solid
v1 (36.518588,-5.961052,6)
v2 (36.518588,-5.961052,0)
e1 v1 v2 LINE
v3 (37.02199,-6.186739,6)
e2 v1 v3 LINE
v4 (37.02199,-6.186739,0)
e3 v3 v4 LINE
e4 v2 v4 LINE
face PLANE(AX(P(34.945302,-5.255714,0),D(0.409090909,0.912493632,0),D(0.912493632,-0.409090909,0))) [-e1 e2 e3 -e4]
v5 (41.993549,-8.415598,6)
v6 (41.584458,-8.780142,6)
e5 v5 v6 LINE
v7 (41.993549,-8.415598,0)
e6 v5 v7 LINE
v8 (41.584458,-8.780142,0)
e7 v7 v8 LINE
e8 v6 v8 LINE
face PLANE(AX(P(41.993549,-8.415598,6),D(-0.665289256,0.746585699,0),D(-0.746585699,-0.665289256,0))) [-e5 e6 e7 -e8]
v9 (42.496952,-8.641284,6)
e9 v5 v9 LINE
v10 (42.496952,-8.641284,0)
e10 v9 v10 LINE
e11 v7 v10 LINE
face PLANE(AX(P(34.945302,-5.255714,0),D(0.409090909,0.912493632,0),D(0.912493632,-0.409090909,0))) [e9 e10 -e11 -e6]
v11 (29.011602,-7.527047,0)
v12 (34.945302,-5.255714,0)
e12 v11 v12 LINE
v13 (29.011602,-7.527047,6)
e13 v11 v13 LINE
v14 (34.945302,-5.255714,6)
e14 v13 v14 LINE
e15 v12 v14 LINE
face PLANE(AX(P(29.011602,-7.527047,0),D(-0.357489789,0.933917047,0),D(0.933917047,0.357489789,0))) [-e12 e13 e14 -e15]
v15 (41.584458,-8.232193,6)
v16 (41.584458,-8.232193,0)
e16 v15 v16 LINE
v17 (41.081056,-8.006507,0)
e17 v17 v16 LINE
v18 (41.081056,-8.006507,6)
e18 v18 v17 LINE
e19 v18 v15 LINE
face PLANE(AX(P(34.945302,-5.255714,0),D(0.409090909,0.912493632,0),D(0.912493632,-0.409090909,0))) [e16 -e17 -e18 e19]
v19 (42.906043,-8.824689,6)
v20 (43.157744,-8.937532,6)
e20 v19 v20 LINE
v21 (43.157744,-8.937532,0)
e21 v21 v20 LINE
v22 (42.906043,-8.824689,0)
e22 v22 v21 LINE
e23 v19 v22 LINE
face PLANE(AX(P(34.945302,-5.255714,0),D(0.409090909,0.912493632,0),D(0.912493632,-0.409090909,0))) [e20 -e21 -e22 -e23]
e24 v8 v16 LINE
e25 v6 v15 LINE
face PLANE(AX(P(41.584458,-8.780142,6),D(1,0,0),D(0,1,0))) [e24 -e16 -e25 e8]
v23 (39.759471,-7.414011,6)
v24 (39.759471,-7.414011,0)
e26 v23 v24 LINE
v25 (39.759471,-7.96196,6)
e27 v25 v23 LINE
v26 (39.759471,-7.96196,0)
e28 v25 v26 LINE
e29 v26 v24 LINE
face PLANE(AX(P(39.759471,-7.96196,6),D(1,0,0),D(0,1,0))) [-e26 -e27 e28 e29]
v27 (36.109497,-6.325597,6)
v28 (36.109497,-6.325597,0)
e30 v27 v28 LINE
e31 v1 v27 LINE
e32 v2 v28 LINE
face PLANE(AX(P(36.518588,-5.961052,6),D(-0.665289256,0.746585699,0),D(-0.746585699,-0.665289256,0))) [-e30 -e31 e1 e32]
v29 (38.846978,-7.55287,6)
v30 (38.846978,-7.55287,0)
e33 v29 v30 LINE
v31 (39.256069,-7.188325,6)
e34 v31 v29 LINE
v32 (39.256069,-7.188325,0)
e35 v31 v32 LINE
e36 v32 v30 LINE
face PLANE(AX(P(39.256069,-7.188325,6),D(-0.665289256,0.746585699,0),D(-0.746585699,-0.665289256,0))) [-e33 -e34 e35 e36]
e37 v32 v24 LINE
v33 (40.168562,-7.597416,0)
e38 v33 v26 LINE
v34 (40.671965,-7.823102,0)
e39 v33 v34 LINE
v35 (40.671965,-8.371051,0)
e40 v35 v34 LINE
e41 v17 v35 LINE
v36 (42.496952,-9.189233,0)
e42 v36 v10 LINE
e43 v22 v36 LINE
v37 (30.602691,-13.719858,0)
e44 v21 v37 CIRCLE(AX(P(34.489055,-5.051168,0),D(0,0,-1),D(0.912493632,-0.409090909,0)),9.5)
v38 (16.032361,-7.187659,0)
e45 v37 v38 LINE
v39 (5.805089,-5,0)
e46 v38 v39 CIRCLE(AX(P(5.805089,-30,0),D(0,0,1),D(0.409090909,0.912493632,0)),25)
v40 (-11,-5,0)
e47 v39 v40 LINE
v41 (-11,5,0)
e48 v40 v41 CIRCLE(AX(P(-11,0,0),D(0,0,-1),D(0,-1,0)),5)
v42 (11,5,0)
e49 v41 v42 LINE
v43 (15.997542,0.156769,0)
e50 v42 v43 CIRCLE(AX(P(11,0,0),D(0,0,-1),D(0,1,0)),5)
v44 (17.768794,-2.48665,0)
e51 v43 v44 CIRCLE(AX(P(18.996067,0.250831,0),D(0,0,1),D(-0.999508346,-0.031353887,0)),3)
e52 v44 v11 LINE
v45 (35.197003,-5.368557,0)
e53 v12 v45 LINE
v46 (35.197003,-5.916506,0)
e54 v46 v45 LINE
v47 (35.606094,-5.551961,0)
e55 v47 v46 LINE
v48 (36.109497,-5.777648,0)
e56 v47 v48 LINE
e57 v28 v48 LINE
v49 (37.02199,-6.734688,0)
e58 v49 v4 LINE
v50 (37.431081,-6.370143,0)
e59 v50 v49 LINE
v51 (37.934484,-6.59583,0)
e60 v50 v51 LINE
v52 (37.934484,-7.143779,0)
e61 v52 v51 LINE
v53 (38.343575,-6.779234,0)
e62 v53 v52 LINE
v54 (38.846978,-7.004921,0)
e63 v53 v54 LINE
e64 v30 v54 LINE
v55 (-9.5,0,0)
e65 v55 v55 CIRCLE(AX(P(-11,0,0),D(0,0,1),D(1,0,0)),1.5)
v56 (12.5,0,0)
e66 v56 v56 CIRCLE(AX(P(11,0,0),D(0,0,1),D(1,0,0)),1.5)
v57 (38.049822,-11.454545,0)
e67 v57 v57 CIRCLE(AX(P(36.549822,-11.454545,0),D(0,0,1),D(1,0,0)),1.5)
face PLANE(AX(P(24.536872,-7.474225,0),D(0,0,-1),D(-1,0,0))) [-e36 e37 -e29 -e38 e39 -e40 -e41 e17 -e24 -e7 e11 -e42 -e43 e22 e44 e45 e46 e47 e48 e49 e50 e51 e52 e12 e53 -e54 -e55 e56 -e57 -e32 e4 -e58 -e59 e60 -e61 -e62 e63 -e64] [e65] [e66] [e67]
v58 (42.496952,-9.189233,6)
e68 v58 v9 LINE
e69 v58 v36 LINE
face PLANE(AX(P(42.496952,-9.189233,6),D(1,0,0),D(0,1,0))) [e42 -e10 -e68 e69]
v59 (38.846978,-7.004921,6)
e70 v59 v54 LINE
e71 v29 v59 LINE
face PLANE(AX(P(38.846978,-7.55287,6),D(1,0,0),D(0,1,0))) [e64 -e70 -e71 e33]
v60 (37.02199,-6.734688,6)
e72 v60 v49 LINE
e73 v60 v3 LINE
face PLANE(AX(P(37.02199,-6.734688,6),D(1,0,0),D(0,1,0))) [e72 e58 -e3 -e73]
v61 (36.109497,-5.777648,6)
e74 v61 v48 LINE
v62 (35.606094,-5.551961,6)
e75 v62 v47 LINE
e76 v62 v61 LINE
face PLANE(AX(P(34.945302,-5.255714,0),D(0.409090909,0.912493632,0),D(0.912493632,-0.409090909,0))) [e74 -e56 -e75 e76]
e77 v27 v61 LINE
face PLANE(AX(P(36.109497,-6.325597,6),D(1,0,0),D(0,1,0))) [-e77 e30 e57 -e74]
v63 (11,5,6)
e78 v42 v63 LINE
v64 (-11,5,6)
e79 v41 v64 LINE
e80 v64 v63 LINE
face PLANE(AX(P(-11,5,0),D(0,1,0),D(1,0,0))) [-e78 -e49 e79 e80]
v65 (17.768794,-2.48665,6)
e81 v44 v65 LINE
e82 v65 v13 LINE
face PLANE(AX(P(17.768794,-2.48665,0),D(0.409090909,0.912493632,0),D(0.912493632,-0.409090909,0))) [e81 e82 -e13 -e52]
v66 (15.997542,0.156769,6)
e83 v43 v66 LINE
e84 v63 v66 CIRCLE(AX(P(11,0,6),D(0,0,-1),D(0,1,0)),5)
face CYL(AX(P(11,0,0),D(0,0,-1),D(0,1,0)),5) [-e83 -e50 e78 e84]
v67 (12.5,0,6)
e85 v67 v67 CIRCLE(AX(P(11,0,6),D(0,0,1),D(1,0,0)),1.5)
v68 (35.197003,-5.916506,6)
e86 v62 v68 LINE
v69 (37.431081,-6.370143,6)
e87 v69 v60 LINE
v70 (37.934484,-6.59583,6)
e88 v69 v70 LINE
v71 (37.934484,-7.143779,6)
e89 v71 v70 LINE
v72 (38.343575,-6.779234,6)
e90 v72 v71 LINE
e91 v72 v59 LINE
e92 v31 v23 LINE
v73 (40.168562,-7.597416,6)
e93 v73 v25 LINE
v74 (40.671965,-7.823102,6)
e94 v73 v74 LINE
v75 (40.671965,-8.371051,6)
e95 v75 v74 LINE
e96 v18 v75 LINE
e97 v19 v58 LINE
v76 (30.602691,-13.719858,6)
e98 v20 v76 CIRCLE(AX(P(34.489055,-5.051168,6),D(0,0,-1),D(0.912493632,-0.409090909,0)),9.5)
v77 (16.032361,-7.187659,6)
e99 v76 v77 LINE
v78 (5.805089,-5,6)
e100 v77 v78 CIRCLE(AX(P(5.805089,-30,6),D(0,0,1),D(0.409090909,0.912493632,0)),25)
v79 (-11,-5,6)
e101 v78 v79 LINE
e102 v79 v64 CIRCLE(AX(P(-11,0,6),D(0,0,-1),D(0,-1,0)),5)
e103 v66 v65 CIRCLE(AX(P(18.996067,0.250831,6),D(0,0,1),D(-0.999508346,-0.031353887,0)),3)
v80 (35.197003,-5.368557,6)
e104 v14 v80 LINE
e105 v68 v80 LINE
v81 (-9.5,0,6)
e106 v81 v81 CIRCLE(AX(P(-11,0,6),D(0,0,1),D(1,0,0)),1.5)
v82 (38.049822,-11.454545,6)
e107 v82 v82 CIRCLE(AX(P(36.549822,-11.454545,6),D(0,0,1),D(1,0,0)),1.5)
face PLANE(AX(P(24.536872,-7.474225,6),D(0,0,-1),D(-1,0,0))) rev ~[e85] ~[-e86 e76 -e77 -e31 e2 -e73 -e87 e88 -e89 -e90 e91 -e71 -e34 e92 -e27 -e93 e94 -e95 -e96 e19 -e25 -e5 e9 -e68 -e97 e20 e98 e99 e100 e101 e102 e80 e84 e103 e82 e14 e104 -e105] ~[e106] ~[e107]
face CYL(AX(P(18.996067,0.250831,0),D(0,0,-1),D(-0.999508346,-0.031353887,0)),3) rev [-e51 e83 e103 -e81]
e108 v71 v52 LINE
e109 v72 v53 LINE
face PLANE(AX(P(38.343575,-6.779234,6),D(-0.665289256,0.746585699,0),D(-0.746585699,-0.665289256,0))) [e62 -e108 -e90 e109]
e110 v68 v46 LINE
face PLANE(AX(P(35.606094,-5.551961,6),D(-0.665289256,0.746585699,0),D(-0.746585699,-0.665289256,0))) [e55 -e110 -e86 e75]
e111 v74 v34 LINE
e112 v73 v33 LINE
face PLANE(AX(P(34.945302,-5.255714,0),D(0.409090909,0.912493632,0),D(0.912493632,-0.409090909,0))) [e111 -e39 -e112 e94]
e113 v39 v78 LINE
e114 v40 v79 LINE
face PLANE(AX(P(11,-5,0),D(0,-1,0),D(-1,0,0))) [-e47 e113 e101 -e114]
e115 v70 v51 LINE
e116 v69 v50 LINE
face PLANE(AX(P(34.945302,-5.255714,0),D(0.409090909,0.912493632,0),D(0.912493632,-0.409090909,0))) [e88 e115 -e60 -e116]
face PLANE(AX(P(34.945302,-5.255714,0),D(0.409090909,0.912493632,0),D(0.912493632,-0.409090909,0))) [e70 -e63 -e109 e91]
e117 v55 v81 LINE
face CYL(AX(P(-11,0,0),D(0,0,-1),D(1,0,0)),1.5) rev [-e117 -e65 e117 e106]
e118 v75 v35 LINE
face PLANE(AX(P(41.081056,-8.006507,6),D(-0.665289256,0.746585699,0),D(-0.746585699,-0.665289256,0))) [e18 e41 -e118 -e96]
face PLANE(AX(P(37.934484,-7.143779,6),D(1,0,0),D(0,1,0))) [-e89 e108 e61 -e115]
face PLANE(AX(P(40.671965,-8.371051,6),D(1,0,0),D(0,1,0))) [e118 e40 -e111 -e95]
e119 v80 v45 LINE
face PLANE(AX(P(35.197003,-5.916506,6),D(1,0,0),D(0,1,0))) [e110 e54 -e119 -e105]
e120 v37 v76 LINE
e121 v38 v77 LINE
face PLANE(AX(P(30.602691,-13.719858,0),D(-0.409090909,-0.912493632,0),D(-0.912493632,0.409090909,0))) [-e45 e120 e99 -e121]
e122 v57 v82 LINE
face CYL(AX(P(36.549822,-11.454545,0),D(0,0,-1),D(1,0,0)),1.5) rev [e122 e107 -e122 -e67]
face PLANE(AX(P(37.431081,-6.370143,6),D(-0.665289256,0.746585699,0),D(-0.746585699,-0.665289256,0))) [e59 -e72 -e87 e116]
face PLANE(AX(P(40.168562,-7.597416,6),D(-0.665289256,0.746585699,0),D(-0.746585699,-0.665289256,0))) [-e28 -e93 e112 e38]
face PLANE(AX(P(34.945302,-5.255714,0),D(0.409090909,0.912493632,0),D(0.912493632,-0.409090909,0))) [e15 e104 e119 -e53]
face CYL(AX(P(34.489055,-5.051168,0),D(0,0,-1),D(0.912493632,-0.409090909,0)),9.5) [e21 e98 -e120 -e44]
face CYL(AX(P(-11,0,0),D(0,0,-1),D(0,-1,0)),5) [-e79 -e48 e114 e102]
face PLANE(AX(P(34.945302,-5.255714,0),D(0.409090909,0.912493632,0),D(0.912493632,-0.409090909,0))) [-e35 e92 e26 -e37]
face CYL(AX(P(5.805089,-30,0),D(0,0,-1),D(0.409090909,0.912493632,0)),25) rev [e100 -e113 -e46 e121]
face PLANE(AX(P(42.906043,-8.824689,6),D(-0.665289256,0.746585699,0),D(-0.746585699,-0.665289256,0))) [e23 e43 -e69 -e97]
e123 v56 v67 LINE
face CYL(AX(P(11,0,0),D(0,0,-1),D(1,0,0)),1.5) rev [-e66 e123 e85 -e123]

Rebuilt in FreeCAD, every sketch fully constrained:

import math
import FreeCAD as App
import Part
import Sketcher


def add_polygon(sketch, points):
    """Adds a closed chain of lines whose ends are joined by coincident constraints."""
    first, n = sketch.GeometryCount, len(points)
    for a, b in zip(points, points[1:] + points[:1]):
        sketch.addGeometry(Part.LineSegment(App.Vector(*a, 0), App.Vector(*b, 0)), False)
    for i in range(n):
        sketch.addConstraint(Sketcher.Constraint("Coincident", first + i, 2, first + (i + 1) % n, 1))

doc = App.newDocument("Part")
params = doc.addObject("Spreadsheet::Sheet", "Params")
for row, (alias, value) in enumerate([
    ("sketch1_diameter", "3 mm"),
    ("sketch1_radius", "5 mm"),
    ("sketch1_width", "22 mm"),
    ("pad1_length", "6 mm"),
    ("sketch2_diameter", "3 mm"),
    ("sketch2_radius", "3 mm"),
    ("sketch2_radius2", "5 mm"),
    ("sketch2_radius3", "25 mm"),
    ("sketch2_radius4", "9.5 mm"),
    ("pad2_length", "6 mm"),
    ("pocket1_length", "6 mm"),
    ("linearpattern_pitch", "1 mm"),
], start=1):
    params.set(f"A{row}", alias)
    params.set(f"B{row}", "=" + value)
    params.setAlias(f"B{row}", alias)

body = doc.addObject("PartDesign::Body", "Body")

# Sketch on XY plane
sketch1 = doc.addObject("Sketcher::SketchObject", "Sketch")
body.addObject(sketch1)
sketch1.AttachmentSupport = (doc.XY_Plane, [""])
sketch1.MapMode = "FlatFace"
sketch1.addGeometry([
    Part.LineSegment(App.Vector(11, 5, 0), App.Vector(-11, 5, 0)),  # 0
    Part.ArcOfCircle(Part.Circle(App.Vector(-11, 0, 0), App.Vector(0, 0, 1), 5), math.radians(90), math.radians(270)),  # 1
    Part.LineSegment(App.Vector(-11, -5, 0), App.Vector(11, -5, 0)),  # 2
    Part.ArcOfCircle(Part.Circle(App.Vector(11, 0, 0), App.Vector(0, 0, 1), 5), math.radians(-90), math.radians(90)),  # 3
    Part.Circle(App.Vector(11, 0, 0), App.Vector(0, 0, 1), 1.5),  # 4
    Part.Circle(App.Vector(-11, 0, 0), App.Vector(0, 0, 1), 1.5),  # 5
], False)
sketch1.addConstraint([
    Sketcher.Constraint("Tangent", 0, 2, 1, 1),
    Sketcher.Constraint("Tangent", 1, 2, 2, 1),
    Sketcher.Constraint("Tangent", 2, 2, 3, 1),
    Sketcher.Constraint("Tangent", 3, 2, 0, 1),
    Sketcher.Constraint("Horizontal", 0),
    Sketcher.Constraint("Horizontal", 2),
    Sketcher.Constraint("Coincident", 4, 3, 3, 3),
    Sketcher.Constraint("Coincident", 5, 3, 1, 3),
    Sketcher.Constraint("Equal", 4, 5),
    Sketcher.Constraint("Symmetric", 1, 3, 3, 3, -1, 1),
    Sketcher.Constraint("Diameter", 4, 3.0),
    Sketcher.Constraint("Radius", 1, 5.0),
    Sketcher.Constraint("DistanceX", 0, 2, 0, 1, 22.0),
])
sketch1.setExpression("Constraints[10]", "Params.sketch1_diameter")
sketch1.setExpression("Constraints[11]", "Params.sketch1_radius")
sketch1.setExpression("Constraints[12]", "Params.sketch1_width")
pad1 = doc.addObject("PartDesign::Pad", "Pad")
body.addObject(pad1)
pad1.Profile = sketch1
pad1.setExpression("Length", "Params.pad1_length")

# Sketch on XY plane
sketch2 = doc.addObject("Sketcher::SketchObject", "Sketch001")
body.addObject(sketch2)
sketch2.AttachmentSupport = (doc.XY_Plane, [""])
sketch2.MapMode = "FlatFace"
sketch2.addGeometry([
    Part.LineSegment(App.Vector(29.011602, -7.527047, 0), App.Vector(17.768794, -2.48665, 0)),  # 0
    Part.ArcOfCircle(Part.Circle(App.Vector(18.996067, 0.250831, 0), App.Vector(0, 0, 1), 3), math.radians(-178.20326), math.radians(-114.14774)),  # 1
    Part.ArcOfCircle(Part.Circle(App.Vector(11, 0, 0), App.Vector(0, 0, 1), 5), math.radians(-90), math.radians(1.79674)),  # 2
    Part.LineSegment(App.Vector(11, -5, 0), App.Vector(5.805089, -5, 0)),  # 3
    Part.ArcOfCircle(Part.Circle(App.Vector(5.805089, -30, 0), App.Vector(0, 0, 1), 25), math.radians(65.85226), math.radians(90)),  # 4
    Part.LineSegment(App.Vector(16.032361, -7.187659, 0), App.Vector(30.602691, -13.719858, 0)),  # 5
    Part.ArcOfCircle(Part.Circle(App.Vector(34.489055, -5.051168, 0), App.Vector(0, 0, 1), 9.5), math.radians(-114.14774), math.radians(-24.14774)),  # 6
    Part.LineSegment(App.Vector(43.157744, -8.937532, 0), App.Vector(34.945302, -5.255714, 0)),  # 7
    Part.LineSegment(App.Vector(34.945302, -5.255714, 0), App.Vector(29.011602, -7.527047, 0)),  # 8
    Part.Circle(App.Vector(36.549822, -11.454545, 0), App.Vector(0, 0, 1), 1.5),  # 9
], False)
sketch2.addConstraint([
    Sketcher.Constraint("Tangent", 0, 2, 1, 2),
    Sketcher.Constraint("Tangent", 1, 1, 2, 2),
    Sketcher.Constraint("Tangent", 2, 1, 3, 1),
    Sketcher.Constraint("Tangent", 3, 2, 4, 2),
    Sketcher.Constraint("Tangent", 4, 1, 5, 1),
    Sketcher.Constraint("Tangent", 5, 2, 6, 1),
    Sketcher.Constraint("Coincident", 6, 2, 7, 1),
    Sketcher.Constraint("Coincident", 7, 2, 8, 1),
    Sketcher.Constraint("Coincident", 8, 2, 0, 1),
    Sketcher.Constraint("Horizontal", 3),
    Sketcher.Constraint("PointOnObject", 2, 3, -1),
    Sketcher.Constraint("Parallel", 0, 5),
    Sketcher.Constraint("Parallel", 5, 7),
    Sketcher.Constraint("Diameter", 9, 3.0),
    Sketcher.Constraint("Radius", 1, 3.0),
    Sketcher.Constraint("Radius", 2, 5.0),
    Sketcher.Constraint("Radius", 4, 25.0),
    Sketcher.Constraint("Radius", 6, 9.5),
    Sketcher.Constraint("Distance", 7, 9.0),
    Sketcher.Constraint("DistanceX", -1, 1, 2, 3, 11.0),
    Sketcher.Constraint("DistanceY", 6, 3, 1, 3, 5.301999),
    Sketcher.Constraint("DistanceX", 3, 2, 3, 1, 5.194911),
    Sketcher.Constraint("DistanceX", -1, 1, 7, 2, 34.945302),
    Sketcher.Constraint("DistanceX", -1, 1, 8, 2, 29.011602),
    Sketcher.Constraint("DistanceY", 5, 2, 4, 1, 6.532199),
    Sketcher.Constraint("DistanceY", 9, 3, 8, 2, 3.927498),
    Sketcher.Constraint("Distance", 0, 12.320971),
    Sketcher.Constraint("DistanceX", -1, 1, 9, 3, 36.549822),
])
sketch2.setExpression("Constraints[13]", "Params.sketch2_diameter")
sketch2.setExpression("Constraints[14]", "Params.sketch2_radius")
sketch2.setExpression("Constraints[15]", "Params.sketch2_radius2")
sketch2.setExpression("Constraints[16]", "Params.sketch2_radius3")
sketch2.setExpression("Constraints[17]", "Params.sketch2_radius4")
pad2 = doc.addObject("PartDesign::Pad", "Pad001")
body.addObject(pad2)
pad2.Profile = sketch2
pad2.setExpression("Length", "Params.pad2_length")

# Sketch on XY plane
sketch3 = doc.addObject("Sketcher::SketchObject", "Sketch002")
body.addObject(sketch3)
sketch3.AttachmentSupport = (doc.XY_Plane, [""])
sketch3.MapMode = "FlatFace"
sketch3.AttachmentOffset = App.Placement(App.Vector(0, 0, 6), App.Rotation())
add_polygon(sketch3, [(42.496952, -9.189233), (42.906043, -8.824689), (42.496952, -8.641284)])  # lines 0-2
sketch3.addConstraint([
    Sketcher.Constraint("Vertical", 2),
    Sketcher.Constraint("DistanceY", 2, 2, 2, 1, 0.547949),
    Sketcher.Constraint("Distance", 0, 0.547949),
    Sketcher.Constraint("Distance", 1, 0.448322),
    Sketcher.Constraint("DistanceY", 0, 2, -1, 1, 8.824689),
    Sketcher.Constraint("DistanceX", -1, 1, 0, 2, 42.906043),
])
pocket1 = doc.addObject("PartDesign::Pocket", "Pocket")
body.addObject(pocket1)
pocket1.Profile = sketch3
pocket1.setExpression("Length", "Params.pocket1_length")
doc.recompute()

datumline = doc.addObject("PartDesign::Line", "DatumLine")
body.addObject(datumline)
datumline.Placement = App.Placement(App.Vector(0, 0, 0), App.Rotation(App.Vector(0, 0, 1), App.Vector(-0.912493632, 0.409090909, 0)))
linearpattern = doc.addObject("PartDesign::LinearPattern", "LinearPattern")
body.addObject(linearpattern)
linearpattern.Originals = [pocket1]
linearpattern.Direction = (datumline, [""])
linearpattern.Mode = "offset"
linearpattern.setExpression("Offset", "Params.linearpattern_pitch")
linearpattern.Occurrences = 9
body.Tip = linearpattern

doc.recompute()
